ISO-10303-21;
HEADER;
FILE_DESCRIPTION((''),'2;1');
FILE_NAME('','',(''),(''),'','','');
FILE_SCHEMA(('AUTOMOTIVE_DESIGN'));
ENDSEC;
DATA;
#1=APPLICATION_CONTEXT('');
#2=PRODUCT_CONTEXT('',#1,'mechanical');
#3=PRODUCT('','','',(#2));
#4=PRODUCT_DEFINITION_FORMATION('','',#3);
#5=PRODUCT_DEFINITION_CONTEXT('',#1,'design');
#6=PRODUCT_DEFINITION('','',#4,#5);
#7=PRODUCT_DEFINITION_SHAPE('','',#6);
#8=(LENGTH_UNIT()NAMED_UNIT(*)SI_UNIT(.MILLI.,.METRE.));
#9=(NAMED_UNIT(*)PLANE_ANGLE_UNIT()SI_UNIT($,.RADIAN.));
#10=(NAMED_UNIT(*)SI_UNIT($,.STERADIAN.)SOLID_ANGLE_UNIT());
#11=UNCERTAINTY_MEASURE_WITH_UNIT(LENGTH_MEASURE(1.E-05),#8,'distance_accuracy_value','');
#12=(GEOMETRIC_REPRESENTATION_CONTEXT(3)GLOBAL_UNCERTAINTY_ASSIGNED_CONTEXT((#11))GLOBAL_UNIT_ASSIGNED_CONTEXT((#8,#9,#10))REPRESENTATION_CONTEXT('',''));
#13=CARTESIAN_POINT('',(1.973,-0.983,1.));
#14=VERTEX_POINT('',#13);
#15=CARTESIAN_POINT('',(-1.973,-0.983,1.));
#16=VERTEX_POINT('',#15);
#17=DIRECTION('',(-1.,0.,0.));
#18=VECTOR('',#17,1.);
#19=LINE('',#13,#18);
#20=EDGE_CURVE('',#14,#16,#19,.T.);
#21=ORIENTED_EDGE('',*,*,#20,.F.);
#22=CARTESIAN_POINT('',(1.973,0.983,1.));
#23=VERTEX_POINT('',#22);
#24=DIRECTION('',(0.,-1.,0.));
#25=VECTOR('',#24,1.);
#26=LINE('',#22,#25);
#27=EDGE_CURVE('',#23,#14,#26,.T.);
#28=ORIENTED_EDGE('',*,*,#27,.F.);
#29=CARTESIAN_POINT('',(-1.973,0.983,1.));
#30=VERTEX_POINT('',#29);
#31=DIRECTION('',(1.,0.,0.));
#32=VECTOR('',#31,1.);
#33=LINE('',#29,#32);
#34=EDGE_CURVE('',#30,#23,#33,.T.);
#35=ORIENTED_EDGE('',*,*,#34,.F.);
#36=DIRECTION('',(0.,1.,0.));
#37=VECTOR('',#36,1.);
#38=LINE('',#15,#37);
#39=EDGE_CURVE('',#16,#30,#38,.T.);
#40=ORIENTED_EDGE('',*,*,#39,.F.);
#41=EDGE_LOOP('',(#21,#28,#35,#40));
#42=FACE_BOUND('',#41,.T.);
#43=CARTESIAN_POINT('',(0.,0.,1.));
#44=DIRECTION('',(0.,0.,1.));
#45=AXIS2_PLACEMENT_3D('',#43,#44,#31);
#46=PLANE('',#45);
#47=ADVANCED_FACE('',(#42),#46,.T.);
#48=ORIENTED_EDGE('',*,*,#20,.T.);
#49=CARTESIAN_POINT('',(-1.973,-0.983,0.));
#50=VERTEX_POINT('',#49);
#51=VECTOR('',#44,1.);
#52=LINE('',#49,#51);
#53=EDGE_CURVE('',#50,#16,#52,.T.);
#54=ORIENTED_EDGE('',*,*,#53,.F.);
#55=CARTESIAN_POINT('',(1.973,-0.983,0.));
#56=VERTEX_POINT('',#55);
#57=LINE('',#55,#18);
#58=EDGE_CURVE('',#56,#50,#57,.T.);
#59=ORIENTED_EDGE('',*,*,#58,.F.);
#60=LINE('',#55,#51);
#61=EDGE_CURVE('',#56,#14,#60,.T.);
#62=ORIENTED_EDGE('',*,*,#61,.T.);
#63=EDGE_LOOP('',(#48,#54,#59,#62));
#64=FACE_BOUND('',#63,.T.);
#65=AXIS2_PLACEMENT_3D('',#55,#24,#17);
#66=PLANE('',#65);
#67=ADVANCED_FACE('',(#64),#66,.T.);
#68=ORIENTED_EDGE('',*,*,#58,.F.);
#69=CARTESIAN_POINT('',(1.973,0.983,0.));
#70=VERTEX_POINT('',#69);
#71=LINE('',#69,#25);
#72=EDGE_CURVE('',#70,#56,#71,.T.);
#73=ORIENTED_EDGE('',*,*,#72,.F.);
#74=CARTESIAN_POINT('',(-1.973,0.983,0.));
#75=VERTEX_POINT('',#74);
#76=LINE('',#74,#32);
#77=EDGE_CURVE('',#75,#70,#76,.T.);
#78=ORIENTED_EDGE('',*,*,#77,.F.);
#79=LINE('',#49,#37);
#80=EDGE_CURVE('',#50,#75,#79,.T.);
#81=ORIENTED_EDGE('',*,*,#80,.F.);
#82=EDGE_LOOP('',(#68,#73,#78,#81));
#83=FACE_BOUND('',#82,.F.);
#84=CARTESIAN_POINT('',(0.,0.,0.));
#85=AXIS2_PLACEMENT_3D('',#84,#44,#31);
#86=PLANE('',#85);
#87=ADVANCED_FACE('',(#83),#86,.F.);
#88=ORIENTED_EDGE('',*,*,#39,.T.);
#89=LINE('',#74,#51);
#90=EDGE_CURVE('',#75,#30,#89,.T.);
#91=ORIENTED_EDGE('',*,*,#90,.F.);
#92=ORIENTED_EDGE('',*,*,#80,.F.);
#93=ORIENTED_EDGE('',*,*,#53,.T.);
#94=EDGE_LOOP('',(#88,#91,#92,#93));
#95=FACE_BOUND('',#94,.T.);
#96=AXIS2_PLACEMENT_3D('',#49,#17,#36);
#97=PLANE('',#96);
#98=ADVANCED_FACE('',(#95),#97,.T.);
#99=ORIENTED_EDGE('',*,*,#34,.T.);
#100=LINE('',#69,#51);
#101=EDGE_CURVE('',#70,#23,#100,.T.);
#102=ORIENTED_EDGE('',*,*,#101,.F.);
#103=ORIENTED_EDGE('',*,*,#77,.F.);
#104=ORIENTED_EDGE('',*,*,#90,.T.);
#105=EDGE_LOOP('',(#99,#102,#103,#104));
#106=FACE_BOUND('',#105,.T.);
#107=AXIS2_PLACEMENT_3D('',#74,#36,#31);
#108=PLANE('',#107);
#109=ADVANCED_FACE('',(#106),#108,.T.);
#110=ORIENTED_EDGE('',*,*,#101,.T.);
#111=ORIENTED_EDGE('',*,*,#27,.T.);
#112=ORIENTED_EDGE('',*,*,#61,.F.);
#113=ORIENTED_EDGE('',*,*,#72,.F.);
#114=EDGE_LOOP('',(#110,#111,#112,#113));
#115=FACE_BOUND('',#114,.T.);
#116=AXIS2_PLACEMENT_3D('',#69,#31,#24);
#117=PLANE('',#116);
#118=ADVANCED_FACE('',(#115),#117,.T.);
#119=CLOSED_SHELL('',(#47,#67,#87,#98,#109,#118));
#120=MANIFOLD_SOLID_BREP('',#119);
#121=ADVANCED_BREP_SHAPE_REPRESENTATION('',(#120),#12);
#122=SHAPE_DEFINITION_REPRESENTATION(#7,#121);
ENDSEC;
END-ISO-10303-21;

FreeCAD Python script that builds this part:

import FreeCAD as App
import Part
import Sketcher


def add_polygon(sketch, points):
    """Adds a closed chain of lines whose ends are joined by coincident constraints."""
    first, n = sketch.GeometryCount, len(points)
    for a, b in zip(points, points[1:] + points[:1]):
        sketch.addGeometry(Part.LineSegment(App.Vector(*a, 0), App.Vector(*b, 0)), False)
    for i in range(n):
        sketch.addConstraint(Sketcher.Constraint("Coincident", first + i, 2, first + (i + 1) % n, 1))

doc = App.newDocument("Part")
params = doc.addObject("Spreadsheet::Sheet", "Params")
for row, (alias, value) in enumerate([
    ("pad1_length", "1 mm"),
], start=1):
    params.set(f"A{row}", alias)
    params.set(f"B{row}", "=" + value)
    params.setAlias(f"B{row}", alias)

body = doc.addObject("PartDesign::Body", "Body")

# Sketch on XY plane
sketch1 = body.newObject("Sketcher::SketchObject", "Sketch")
sketch1.AttachmentSupport = (doc.getObject("XY_Plane"), [""])
sketch1.MapMode = "FlatFace"
add_polygon(sketch1, [(1.973, 0.983), (-1.973, 0.983), (-1.973, -0.983), (1.973, -0.983)])  # lines 0-3
sketch1.addConstraint([
    Sketcher.Constraint("Horizontal", 0),
    Sketcher.Constraint("Vertical", 1),
    Sketcher.Constraint("Horizontal", 2),
    Sketcher.Constraint("Vertical", 3),
    Sketcher.Constraint("Symmetric", 0, 2, 2, 2, -1, 1),
    Sketcher.Constraint("DistanceX", 0, 2, 0, 1, 3.946),
    Sketcher.Constraint("DistanceY", 1, 2, 1, 1, 1.966),
])
pad1 = body.newObject("PartDesign::Pad", "Pad")
pad1.Profile = sketch1
pad1.setExpression("Length", "Params.pad1_length")

doc.recompute()
